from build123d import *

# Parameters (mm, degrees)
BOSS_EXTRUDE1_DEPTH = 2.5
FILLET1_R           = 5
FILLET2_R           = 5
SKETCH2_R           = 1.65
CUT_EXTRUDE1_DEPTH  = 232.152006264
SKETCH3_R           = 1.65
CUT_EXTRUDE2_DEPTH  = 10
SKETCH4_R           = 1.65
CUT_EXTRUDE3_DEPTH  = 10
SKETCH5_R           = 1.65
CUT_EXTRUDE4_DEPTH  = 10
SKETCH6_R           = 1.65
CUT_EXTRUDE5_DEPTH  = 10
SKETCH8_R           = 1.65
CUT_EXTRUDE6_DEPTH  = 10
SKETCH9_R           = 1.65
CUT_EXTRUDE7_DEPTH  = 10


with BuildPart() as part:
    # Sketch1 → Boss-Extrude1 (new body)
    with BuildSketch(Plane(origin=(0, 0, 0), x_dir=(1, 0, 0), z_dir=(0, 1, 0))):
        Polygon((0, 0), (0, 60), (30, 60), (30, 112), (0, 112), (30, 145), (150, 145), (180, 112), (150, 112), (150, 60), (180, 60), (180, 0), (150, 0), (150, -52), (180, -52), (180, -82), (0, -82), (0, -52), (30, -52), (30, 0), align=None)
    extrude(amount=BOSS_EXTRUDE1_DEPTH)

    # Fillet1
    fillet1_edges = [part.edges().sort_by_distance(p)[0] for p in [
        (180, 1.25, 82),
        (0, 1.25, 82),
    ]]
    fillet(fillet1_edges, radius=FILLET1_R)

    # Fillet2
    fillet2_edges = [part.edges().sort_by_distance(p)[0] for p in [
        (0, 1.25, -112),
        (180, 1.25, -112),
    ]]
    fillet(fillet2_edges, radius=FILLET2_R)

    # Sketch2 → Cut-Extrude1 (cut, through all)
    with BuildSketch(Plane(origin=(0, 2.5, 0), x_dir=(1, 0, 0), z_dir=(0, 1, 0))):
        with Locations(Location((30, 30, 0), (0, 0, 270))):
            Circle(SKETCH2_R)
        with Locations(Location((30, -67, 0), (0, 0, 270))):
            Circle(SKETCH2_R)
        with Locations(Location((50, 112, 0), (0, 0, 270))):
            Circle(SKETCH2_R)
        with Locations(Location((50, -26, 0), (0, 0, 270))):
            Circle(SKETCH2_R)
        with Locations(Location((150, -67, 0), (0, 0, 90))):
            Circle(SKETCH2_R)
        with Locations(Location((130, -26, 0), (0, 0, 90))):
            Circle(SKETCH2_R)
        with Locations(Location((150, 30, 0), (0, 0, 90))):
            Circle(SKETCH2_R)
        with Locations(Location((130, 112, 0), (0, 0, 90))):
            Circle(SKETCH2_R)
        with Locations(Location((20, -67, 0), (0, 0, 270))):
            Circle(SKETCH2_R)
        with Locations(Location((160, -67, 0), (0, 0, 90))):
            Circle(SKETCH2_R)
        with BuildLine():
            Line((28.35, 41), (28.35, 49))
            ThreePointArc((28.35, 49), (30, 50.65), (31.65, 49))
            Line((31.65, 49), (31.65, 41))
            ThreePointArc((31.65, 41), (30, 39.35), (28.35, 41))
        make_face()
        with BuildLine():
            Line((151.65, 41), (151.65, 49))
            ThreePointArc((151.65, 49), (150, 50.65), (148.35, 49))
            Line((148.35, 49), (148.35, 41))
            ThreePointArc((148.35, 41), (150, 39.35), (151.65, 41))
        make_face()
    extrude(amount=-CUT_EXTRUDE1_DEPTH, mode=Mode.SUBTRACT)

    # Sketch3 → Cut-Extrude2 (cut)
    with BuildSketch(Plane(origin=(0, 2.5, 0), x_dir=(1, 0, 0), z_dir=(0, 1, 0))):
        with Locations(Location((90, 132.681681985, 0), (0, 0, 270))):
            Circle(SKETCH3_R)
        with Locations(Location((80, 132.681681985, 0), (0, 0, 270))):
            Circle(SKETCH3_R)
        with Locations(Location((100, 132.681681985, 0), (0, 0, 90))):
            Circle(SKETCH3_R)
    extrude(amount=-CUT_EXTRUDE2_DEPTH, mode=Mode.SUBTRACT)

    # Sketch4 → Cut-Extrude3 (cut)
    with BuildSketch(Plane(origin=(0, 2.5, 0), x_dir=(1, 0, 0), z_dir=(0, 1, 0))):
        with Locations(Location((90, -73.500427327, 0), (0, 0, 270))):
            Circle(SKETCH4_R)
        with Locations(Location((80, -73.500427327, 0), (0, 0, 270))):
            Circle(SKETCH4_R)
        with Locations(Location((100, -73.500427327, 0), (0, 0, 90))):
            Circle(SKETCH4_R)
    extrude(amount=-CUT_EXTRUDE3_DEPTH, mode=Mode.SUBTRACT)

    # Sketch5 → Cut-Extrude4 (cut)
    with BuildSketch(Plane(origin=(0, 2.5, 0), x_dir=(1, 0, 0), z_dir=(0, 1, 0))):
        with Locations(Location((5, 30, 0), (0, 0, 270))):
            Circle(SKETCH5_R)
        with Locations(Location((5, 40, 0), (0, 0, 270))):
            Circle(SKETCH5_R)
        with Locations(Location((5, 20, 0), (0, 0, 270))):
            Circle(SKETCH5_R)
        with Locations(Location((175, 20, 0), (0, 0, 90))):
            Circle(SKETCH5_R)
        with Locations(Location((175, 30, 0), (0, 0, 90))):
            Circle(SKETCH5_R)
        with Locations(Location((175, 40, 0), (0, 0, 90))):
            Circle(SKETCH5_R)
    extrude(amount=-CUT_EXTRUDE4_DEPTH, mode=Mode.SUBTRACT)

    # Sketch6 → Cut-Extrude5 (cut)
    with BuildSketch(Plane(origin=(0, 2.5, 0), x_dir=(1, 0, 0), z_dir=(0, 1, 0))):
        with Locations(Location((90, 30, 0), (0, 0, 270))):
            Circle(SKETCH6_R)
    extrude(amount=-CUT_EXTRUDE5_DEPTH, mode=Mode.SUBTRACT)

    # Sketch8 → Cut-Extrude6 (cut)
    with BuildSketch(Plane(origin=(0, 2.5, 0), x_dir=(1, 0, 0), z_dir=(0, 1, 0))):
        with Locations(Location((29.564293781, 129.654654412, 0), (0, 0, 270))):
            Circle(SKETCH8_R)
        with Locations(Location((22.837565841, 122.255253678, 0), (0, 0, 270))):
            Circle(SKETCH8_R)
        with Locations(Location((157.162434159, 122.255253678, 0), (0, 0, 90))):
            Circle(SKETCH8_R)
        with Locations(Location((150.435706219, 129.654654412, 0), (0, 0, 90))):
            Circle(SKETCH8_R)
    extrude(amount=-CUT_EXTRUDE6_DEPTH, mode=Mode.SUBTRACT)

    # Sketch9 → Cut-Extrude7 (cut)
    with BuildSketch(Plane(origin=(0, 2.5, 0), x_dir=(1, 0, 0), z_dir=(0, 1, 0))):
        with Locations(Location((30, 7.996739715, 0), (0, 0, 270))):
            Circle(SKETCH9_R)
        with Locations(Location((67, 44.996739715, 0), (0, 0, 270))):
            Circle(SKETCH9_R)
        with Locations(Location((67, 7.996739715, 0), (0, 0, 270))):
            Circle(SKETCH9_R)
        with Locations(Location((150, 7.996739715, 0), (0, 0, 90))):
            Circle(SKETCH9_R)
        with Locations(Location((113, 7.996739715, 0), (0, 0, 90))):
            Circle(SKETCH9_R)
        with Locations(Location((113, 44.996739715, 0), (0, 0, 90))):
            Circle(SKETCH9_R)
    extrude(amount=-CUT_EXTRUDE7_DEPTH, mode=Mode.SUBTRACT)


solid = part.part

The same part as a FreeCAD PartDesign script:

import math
import FreeCAD as App
import Part
import Sketcher


def edges_at(feature, points):
    """Names of the edges that pass closest to the given points."""
    edges = feature.Shape.Edges
    near = lambda p: min(range(len(edges)), key=lambda i: edges[i].distToShape(Part.Vertex(*p))[0])
    return sorted({f"Edge{near(p) + 1}" for p in points})


def add_polygon(sketch, points):
    """Adds a closed chain of lines whose ends are joined by coincident constraints."""
    first, n = sketch.GeometryCount, len(points)
    for a, b in zip(points, points[1:] + points[:1]):
        sketch.addGeometry(Part.LineSegment(App.Vector(*a, 0), App.Vector(*b, 0)), False)
    for i in range(n):
        sketch.addConstraint(Sketcher.Constraint("Coincident", first + i, 2, first + (i + 1) % n, 1))

doc = App.newDocument("Part")
body = doc.addObject("PartDesign::Body", "Body")

# Sketch on XZ plane
sketch1 = doc.addObject("Sketcher::SketchObject", "Sketch")
body.addObject(sketch1)
sketch1.AttachmentSupport = (doc.XZ_Plane, [""])
sketch1.MapMode = "FlatFace"
add_polygon(sketch1, [(0, -60), (0, 0), (30, 0), (30, 52), (0, 52), (0, 82), (180, 82), (180, 52), (150, 52), (150, 0), (180, 0), (180, -60), (150, -60), (150, -112), (180, -112), (150, -145), (30, -145), (0, -112), (30, -112), (30, -60)])  # lines 0-19
sketch1.addConstraint([
    Sketcher.Constraint("Vertical", 0),
    Sketcher.Constraint("Horizontal", 1),
    Sketcher.Constraint("Vertical", 2),
    Sketcher.Constraint("Horizontal", 3),
    Sketcher.Constraint("Vertical", 4),
    Sketcher.Constraint("Horizontal", 5),
    Sketcher.Constraint("Vertical", 6),
    Sketcher.Constraint("Horizontal", 7),
    Sketcher.Constraint("Vertical", 8),
    Sketcher.Constraint("Horizontal", 9),
    Sketcher.Constraint("Vertical", 10),
    Sketcher.Constraint("Horizontal", 11),
    Sketcher.Constraint("Vertical", 12),
    Sketcher.Constraint("Horizontal", 13),
    Sketcher.Constraint("Horizontal", 15),
    Sketcher.Constraint("Horizontal", 17),
    Sketcher.Constraint("Vertical", 18),
    Sketcher.Constraint("Horizontal", 19),
    Sketcher.Constraint("Coincident", 0, 2, -1, 1),
    Sketcher.Constraint("PointOnObject", 3, 2, -2),
    Sketcher.Constraint("PointOnObject", 8, 2, -1),
    Sketcher.Constraint("PointOnObject", 16, 2, -2),
    Sketcher.Constraint("Horizontal", 3, 2, 6, 2),
    Sketcher.Constraint("Horizontal", 13, 2, 16, 2),
    Sketcher.Constraint("Horizontal", 11, 2, 18, 2),
    Sketcher.Constraint("Vertical", 6, 2, 9, 2),
    Sketcher.Constraint("Vertical", 8, 2, 11, 2),
    Sketcher.Constraint("Vertical", 10, 2, 13, 2),
    Sketcher.Constraint("Vertical", 12, 2, 14, 2),
    Sketcher.Constraint("Vertical", 2, 2, 15, 2),
    Sketcher.Constraint("Vertical", 15, 2, 17, 2),
    Sketcher.Constraint("Equal", 3, 7),
    Sketcher.Constraint("Equal", 19, 4),
    Sketcher.Constraint("Equal", 8, 12),
    Sketcher.Constraint("DistanceX", 1, 1, 1, 2, 30.0),
    Sketcher.Constraint("DistanceX", 5, 1, 5, 2, 180.0),
    Sketcher.Constraint("DistanceY", 0, 1, 0, 2, 60.0),
    Sketcher.Constraint("DistanceY", 2, 1, 2, 2, 52.0),
    Sketcher.Constraint("DistanceY", 14, 2, -1, 1, 145.0),
])
pad1 = doc.addObject("PartDesign::Pad", "Pad")
body.addObject(pad1)
pad1.Profile = sketch1
pad1.Length = 2.5
pad1.Reversed = True
doc.recompute()

fillet = doc.addObject("PartDesign::Fillet", "Fillet")
body.addObject(fillet)
fillet.Base = (pad1, edges_at(pad1, [(180, 1.25, 82), (0, 1.25, 82)]))
fillet.Radius = 5
doc.recompute()

fillet2 = doc.addObject("PartDesign::Fillet", "Fillet001")
body.addObject(fillet2)
fillet2.Base = (fillet, edges_at(fillet, [(0, 1.25, -112), (180, 1.25, -112)]))
fillet2.Radius = 5

# Sketch on XZ plane
sketch2 = doc.addObject("Sketcher::SketchObject", "Sketch001")
body.addObject(sketch2)
sketch2.AttachmentSupport = (doc.XZ_Plane, [""])
sketch2.MapMode = "FlatFace"
sketch2.AttachmentOffset = App.Placement(App.Vector(0, 0, -2.5), App.Rotation())
sketch2.addGeometry([
    Part.Circle(App.Vector(30, -30, 0), App.Vector(0, 0, 1), 1.65),  # 0
    Part.Circle(App.Vector(30, 67, 0), App.Vector(0, 0, 1), 1.65),  # 1
    Part.Circle(App.Vector(50, -112, 0), App.Vector(0, 0, 1), 1.65),  # 2
    Part.Circle(App.Vector(50, 26, 0), App.Vector(0, 0, 1), 1.65),  # 3
    Part.Circle(App.Vector(150, 67, 0), App.Vector(0, 0, 1), 1.65),  # 4
    Part.Circle(App.Vector(130, 26, 0), App.Vector(0, 0, 1), 1.65),  # 5
    Part.Circle(App.Vector(150, -30, 0), App.Vector(0, 0, 1), 1.65),  # 6
    Part.Circle(App.Vector(130, -112, 0), App.Vector(0, 0, 1), 1.65),  # 7
    Part.Circle(App.Vector(20, 67, 0), App.Vector(0, 0, 1), 1.65),  # 8
    Part.Circle(App.Vector(160, 67, 0), App.Vector(0, 0, 1), 1.65),  # 9
    Part.LineSegment(App.Vector(28.35, -49, 0), App.Vector(28.35, -41, 0)),  # 10
    Part.ArcOfCircle(Part.Circle(App.Vector(30, -41, 0), App.Vector(0, 0, 1), 1.65), math.radians(0), math.radians(180)),  # 11
    Part.LineSegment(App.Vector(31.65, -41, 0), App.Vector(31.65, -49, 0)),  # 12
    Part.ArcOfCircle(Part.Circle(App.Vector(30, -49, 0), App.Vector(0, 0, 1), 1.65), math.radians(180), math.radians(360)),  # 13
    Part.LineSegment(App.Vector(151.65, -41, 0), App.Vector(151.65, -49, 0)),  # 14
    Part.ArcOfCircle(Part.Circle(App.Vector(150, -49, 0), App.Vector(0, 0, 1), 1.65), math.radians(180), math.radians(360)),  # 15
    Part.LineSegment(App.Vector(148.35, -49, 0), App.Vector(148.35, -41, 0)),  # 16
    Part.ArcOfCircle(Part.Circle(App.Vector(150, -41, 0), App.Vector(0, 0, 1), 1.65), math.radians(0), math.radians(180)),  # 17
], False)
sketch2.addConstraint([
    Sketcher.Constraint("Tangent", 10, 2, 11, 2),
    Sketcher.Constraint("Tangent", 11, 1, 12, 1),
    Sketcher.Constraint("Tangent", 12, 2, 13, 2),
    Sketcher.Constraint("Tangent", 13, 1, 10, 1),
    Sketcher.Constraint("Tangent", 14, 2, 15, 2),
    Sketcher.Constraint("Tangent", 15, 1, 16, 1),
    Sketcher.Constraint("Tangent", 16, 2, 17, 2),
    Sketcher.Constraint("Tangent", 17, 1, 14, 1),
    Sketcher.Constraint("Vertical", 10),
    Sketcher.Constraint("Vertical", 12),
    Sketcher.Constraint("Vertical", 14),
    Sketcher.Constraint("Vertical", 16),
    Sketcher.Constraint("Equal", 0, 1),
    Sketcher.Constraint("Equal", 1, 2),
    Sketcher.Constraint("Equal", 2, 3),
    Sketcher.Constraint("Equal", 3, 4),
    Sketcher.Constraint("Equal", 4, 5),
    Sketcher.Constraint("Equal", 5, 6),
    Sketcher.Constraint("Equal", 6, 7),
    Sketcher.Constraint("Equal", 7, 8),
    Sketcher.Constraint("Equal", 8, 9),
    Sketcher.Constraint("Equal", 9, 11),
    Sketcher.Constraint("Equal", 13, 15),
    Sketcher.Constraint("Horizontal", 1, 3, 4, 3),
    Sketcher.Constraint("Horizontal", 3, 3, 5, 3),
    Sketcher.Constraint("Horizontal", 0, 3, 6, 3),
    Sketcher.Constraint("Horizontal", 2, 3, 7, 3),
    Sketcher.Constraint("Horizontal", 4, 3, 8, 3),
    Sketcher.Constraint("Horizontal", 8, 3, 9, 3),
    Sketcher.Constraint("Horizontal", 13, 3, 15, 3),
    Sketcher.Constraint("Horizontal", 11, 3, 17, 3),
    Sketcher.Constraint("Vertical", 0, 3, 1, 3),
    Sketcher.Constraint("Vertical", 2, 3, 3, 3),
    Sketcher.Constraint("Vertical", 4, 3, 6, 3),
    Sketcher.Constraint("Vertical", 5, 3, 7, 3),
    Sketcher.Constraint("Vertical", 1, 3, 11, 3),
    Sketcher.Constraint("Vertical", 6, 3, 15, 3),
    Sketcher.Constraint("Diameter", 0, 3.3),
    Sketcher.Constraint("DistanceY", 10, 1, 10, 2, 8.0),
    Sketcher.Constraint("DistanceX", -1, 1, 0, 3, 30.0),
    Sketcher.Constraint("DistanceY", 0, 3, -1, 1, 30.0),
    Sketcher.Constraint("DistanceY", -1, 1, 1, 3, 67.0),
    Sketcher.Constraint("DistanceX", -1, 1, 2, 3, 50.0),
    Sketcher.Constraint("DistanceY", 2, 3, -1, 1, 112.0),
    Sketcher.Constraint("DistanceY", -1, 1, 3, 3, 26.0),
    Sketcher.Constraint("DistanceX", -1, 1, 4, 3, 150.0),
    Sketcher.Constraint("DistanceX", -1, 1, 5, 3, 130.0),
    Sketcher.Constraint("DistanceX", -1, 1, 8, 3, 20.0),
    Sketcher.Constraint("DistanceX", -1, 1, 9, 3, 160.0),
    Sketcher.Constraint("DistanceY", 11, 3, -1, 1, 41.0),
])
pocket1 = doc.addObject("PartDesign::Pocket", "Pocket")
body.addObject(pocket1)
pocket1.Profile = sketch2
pocket1.Type = "ThroughAll"
pocket1.Reversed = True

# Sketch on XZ plane
sketch3 = doc.addObject("Sketcher::SketchObject", "Sketch002")
body.addObject(sketch3)
sketch3.AttachmentSupport = (doc.XZ_Plane, [""])
sketch3.MapMode = "FlatFace"
sketch3.AttachmentOffset = App.Placement(App.Vector(0, 0, -2.5), App.Rotation())
sketch3.addGeometry([
    Part.Circle(App.Vector(90, -132.681682, 0), App.Vector(0, 0, 1), 1.65),
    Part.Circle(App.Vector(80, -132.681682, 0), App.Vector(0, 0, 1), 1.65),
    Part.Circle(App.Vector(100, -132.681682, 0), App.Vector(0, 0, 1), 1.65),
], False)
sketch3.addConstraint([
    Sketcher.Constraint("Equal", 0, 1),
    Sketcher.Constraint("Equal", 1, 2),
    Sketcher.Constraint("Horizontal", 0, 3, 1, 3),
    Sketcher.Constraint("Horizontal", 1, 3, 2, 3),
    Sketcher.Constraint("Diameter", 0, 3.3),
    Sketcher.Constraint("DistanceX", -1, 1, 0, 3, 90.0),
    Sketcher.Constraint("DistanceX", -1, 1, 1, 3, 80.0),
    Sketcher.Constraint("DistanceX", -1, 1, 2, 3, 100.0),
    Sketcher.Constraint("DistanceY", 0, 3, -1, 1, 132.681682),
])
pocket2 = doc.addObject("PartDesign::Pocket", "Pocket001")
body.addObject(pocket2)
pocket2.Profile = sketch3
pocket2.Length = 10
pocket2.Reversed = True

# Sketch on XZ plane
sketch4 = doc.addObject("Sketcher::SketchObject", "Sketch003")
body.addObject(sketch4)
sketch4.AttachmentSupport = (doc.XZ_Plane, [""])
sketch4.MapMode = "FlatFace"
sketch4.AttachmentOffset = App.Placement(App.Vector(0, 0, -2.5), App.Rotation())
sketch4.addGeometry([
    Part.Circle(App.Vector(90, 73.500427, 0), App.Vector(0, 0, 1), 1.65),
    Part.Circle(App.Vector(80, 73.500427, 0), App.Vector(0, 0, 1), 1.65),
    Part.Circle(App.Vector(100, 73.500427, 0), App.Vector(0, 0, 1), 1.65),
], False)
sketch4.addConstraint([
    Sketcher.Constraint("Equal", 0, 1),
    Sketcher.Constraint("Equal", 1, 2),
    Sketcher.Constraint("Horizontal", 0, 3, 1, 3),
    Sketcher.Constraint("Horizontal", 1, 3, 2, 3),
    Sketcher.Constraint("Diameter", 0, 3.3),
    Sketcher.Constraint("DistanceX", -1, 1, 0, 3, 90.0),
    Sketcher.Constraint("DistanceX", -1, 1, 1, 3, 80.0),
    Sketcher.Constraint("DistanceX", -1, 1, 2, 3, 100.0),
    Sketcher.Constraint("DistanceY", -1, 1, 0, 3, 73.500427),
])
pocket3 = doc.addObject("PartDesign::Pocket", "Pocket002")
body.addObject(pocket3)
pocket3.Profile = sketch4
pocket3.Length = 10
pocket3.Reversed = True

# Sketch on XZ plane
sketch5 = doc.addObject("Sketcher::SketchObject", "Sketch004")
body.addObject(sketch5)
sketch5.AttachmentSupport = (doc.XZ_Plane, [""])
sketch5.MapMode = "FlatFace"
sketch5.AttachmentOffset = App.Placement(App.Vector(0, 0, -2.5), App.Rotation())
sketch5.addGeometry([
    Part.Circle(App.Vector(5, -30, 0), App.Vector(0, 0, 1), 1.65),  # 0
    Part.Circle(App.Vector(5, -40, 0), App.Vector(0, 0, 1), 1.65),  # 1
    Part.Circle(App.Vector(5, -20, 0), App.Vector(0, 0, 1), 1.65),  # 2
    Part.Circle(App.Vector(175, -20, 0), App.Vector(0, 0, 1), 1.65),  # 3
    Part.Circle(App.Vector(175, -30, 0), App.Vector(0, 0, 1), 1.65),  # 4
    Part.Circle(App.Vector(175, -40, 0), App.Vector(0, 0, 1), 1.65),  # 5
], False)
sketch5.addConstraint([
    Sketcher.Constraint("Equal", 0, 1),
    Sketcher.Constraint("Equal", 1, 2),
    Sketcher.Constraint("Equal", 2, 3),
    Sketcher.Constraint("Equal", 3, 4),
    Sketcher.Constraint("Equal", 4, 5),
    Sketcher.Constraint("Horizontal", 2, 3, 3, 3),
    Sketcher.Constraint("Horizontal", 0, 3, 4, 3),
    Sketcher.Constraint("Horizontal", 1, 3, 5, 3),
    Sketcher.Constraint("Vertical", 0, 3, 1, 3),
    Sketcher.Constraint("Vertical", 1, 3, 2, 3),
    Sketcher.Constraint("Vertical", 3, 3, 4, 3),
    Sketcher.Constraint("Vertical", 4, 3, 5, 3),
    Sketcher.Constraint("Diameter", 0, 3.3),
    Sketcher.Constraint("DistanceX", -1, 1, 0, 3, 5.0),
    Sketcher.Constraint("DistanceY", 0, 3, -1, 1, 30.0),
    Sketcher.Constraint("DistanceY", 1, 3, -1, 1, 40.0),
    Sketcher.Constraint("DistanceY", 2, 3, -1, 1, 20.0),
    Sketcher.Constraint("DistanceX", -1, 1, 3, 3, 175.0),
])
pocket4 = doc.addObject("PartDesign::Pocket", "Pocket003")
body.addObject(pocket4)
pocket4.Profile = sketch5
pocket4.Length = 10
pocket4.Reversed = True

# Sketch on XZ plane
sketch6 = doc.addObject("Sketcher::SketchObject", "Sketch005")
body.addObject(sketch6)
sketch6.AttachmentSupport = (doc.XZ_Plane, [""])
sketch6.MapMode = "FlatFace"
sketch6.AttachmentOffset = App.Placement(App.Vector(0, 0, -2.5), App.Rotation())
sketch6.addGeometry(Part.Circle(App.Vector(90, -30, 0), App.Vector(0, 0, 1), 1.65), False)
sketch6.addConstraint([
    Sketcher.Constraint("Diameter", 0, 3.3),
    Sketcher.Constraint("DistanceX", -1, 1, 0, 3, 90.0),
    Sketcher.Constraint("DistanceY", 0, 3, -1, 1, 30.0),
])
pocket5 = doc.addObject("PartDesign::Pocket", "Pocket004")
body.addObject(pocket5)
pocket5.Profile = sketch6
pocket5.Length = 10
pocket5.Reversed = True

# Sketch on XZ plane
sketch7 = doc.addObject("Sketcher::SketchObject", "Sketch006")
body.addObject(sketch7)
sketch7.AttachmentSupport = (doc.XZ_Plane, [""])
sketch7.MapMode = "FlatFace"
sketch7.AttachmentOffset = App.Placement(App.Vector(0, 0, -2.5), App.Rotation())
sketch7.addGeometry([
    Part.Circle(App.Vector(29.564294, -129.654654, 0), App.Vector(0, 0, 1), 1.65),
    Part.Circle(App.Vector(22.837566, -122.255254, 0), App.Vector(0, 0, 1), 1.65),
    Part.Circle(App.Vector(157.162434, -122.255254, 0), App.Vector(0, 0, 1), 1.65),
    Part.Circle(App.Vector(150.435706, -129.654654, 0), App.Vector(0, 0, 1), 1.65),
], False)
sketch7.addConstraint([
    Sketcher.Constraint("Equal", 0, 1),
    Sketcher.Constraint("Equal", 1, 2),
    Sketcher.Constraint("Equal", 2, 3),
    Sketcher.Constraint("Horizontal", 1, 3, 2, 3),
    Sketcher.Constraint("Horizontal", 0, 3, 3, 3),
    Sketcher.Constraint("Diameter", 0, 3.3),
    Sketcher.Constraint("DistanceY", 0, 3, 1, 3, 7.399401),
    Sketcher.Constraint("DistanceX", 0, 3, 2, 3, 127.59814),
    Sketcher.Constraint("DistanceX", 1, 3, 2, 3, 134.324868),
    Sketcher.Constraint("DistanceX", 1, 3, 3, 3, 127.59814),
    Sketcher.Constraint("DistanceX", -1, 1, 0, 3, 29.564294),
    Sketcher.Constraint("DistanceY", 0, 3, -1, 1, 129.654654),
])
pocket6 = doc.addObject("PartDesign::Pocket", "Pocket005")
body.addObject(pocket6)
pocket6.Profile = sketch7
pocket6.Length = 10
pocket6.Reversed = True

# Sketch on XZ plane
sketch8 = doc.addObject("Sketcher::SketchObject", "Sketch007")
body.addObject(sketch8)
sketch8.AttachmentSupport = (doc.XZ_Plane, [""])
sketch8.MapMode = "FlatFace"
sketch8.AttachmentOffset = App.Placement(App.Vector(0, 0, -2.5), App.Rotation())
sketch8.addGeometry([
    Part.Circle(App.Vector(30, -7.99674, 0), App.Vector(0, 0, 1), 1.65),  # 0
    Part.Circle(App.Vector(67, -44.99674, 0), App.Vector(0, 0, 1), 1.65),  # 1
    Part.Circle(App.Vector(67, -7.99674, 0), App.Vector(0, 0, 1), 1.65),  # 2
    Part.Circle(App.Vector(150, -7.99674, 0), App.Vector(0, 0, 1), 1.65),  # 3
    Part.Circle(App.Vector(113, -7.99674, 0), App.Vector(0, 0, 1), 1.65),  # 4
    Part.Circle(App.Vector(113, -44.99674, 0), App.Vector(0, 0, 1), 1.65),  # 5
], False)
sketch8.addConstraint([
    Sketcher.Constraint("Equal", 0, 1),
    Sketcher.Constraint("Equal", 1, 2),
    Sketcher.Constraint("Equal", 2, 3),
    Sketcher.Constraint("Equal", 3, 4),
    Sketcher.Constraint("Equal", 4, 5),
    Sketcher.Constraint("Horizontal", 0, 3, 2, 3),
    Sketcher.Constraint("Horizontal", 2, 3, 3, 3),
    Sketcher.Constraint("Horizontal", 3, 3, 4, 3),
    Sketcher.Constraint("Horizontal", 1, 3, 5, 3),
    Sketcher.Constraint("Vertical", 1, 3, 2, 3),
    Sketcher.Constraint("Vertical", 4, 3, 5, 3),
    Sketcher.Constraint("Diameter", 0, 3.3),
    Sketcher.Constraint("DistanceX", -1, 1, 0, 3, 30.0),
    Sketcher.Constraint("DistanceX", -1, 1, 1, 3, 67.0),
    Sketcher.Constraint("DistanceX", -1, 1, 3, 3, 150.0),
    Sketcher.Constraint("DistanceX", -1, 1, 4, 3, 113.0),
    Sketcher.Constraint("DistanceY", 1, 3, 0, 3, 37.0),
    Sketcher.Constraint("DistanceY", 0, 3, -1, 1, 7.99674),
])
pocket7 = doc.addObject("PartDesign::Pocket", "Pocket006")
body.addObject(pocket7)
pocket7.Profile = sketch8
pocket7.Length = 10
pocket7.Reversed = True

doc.recompute()
